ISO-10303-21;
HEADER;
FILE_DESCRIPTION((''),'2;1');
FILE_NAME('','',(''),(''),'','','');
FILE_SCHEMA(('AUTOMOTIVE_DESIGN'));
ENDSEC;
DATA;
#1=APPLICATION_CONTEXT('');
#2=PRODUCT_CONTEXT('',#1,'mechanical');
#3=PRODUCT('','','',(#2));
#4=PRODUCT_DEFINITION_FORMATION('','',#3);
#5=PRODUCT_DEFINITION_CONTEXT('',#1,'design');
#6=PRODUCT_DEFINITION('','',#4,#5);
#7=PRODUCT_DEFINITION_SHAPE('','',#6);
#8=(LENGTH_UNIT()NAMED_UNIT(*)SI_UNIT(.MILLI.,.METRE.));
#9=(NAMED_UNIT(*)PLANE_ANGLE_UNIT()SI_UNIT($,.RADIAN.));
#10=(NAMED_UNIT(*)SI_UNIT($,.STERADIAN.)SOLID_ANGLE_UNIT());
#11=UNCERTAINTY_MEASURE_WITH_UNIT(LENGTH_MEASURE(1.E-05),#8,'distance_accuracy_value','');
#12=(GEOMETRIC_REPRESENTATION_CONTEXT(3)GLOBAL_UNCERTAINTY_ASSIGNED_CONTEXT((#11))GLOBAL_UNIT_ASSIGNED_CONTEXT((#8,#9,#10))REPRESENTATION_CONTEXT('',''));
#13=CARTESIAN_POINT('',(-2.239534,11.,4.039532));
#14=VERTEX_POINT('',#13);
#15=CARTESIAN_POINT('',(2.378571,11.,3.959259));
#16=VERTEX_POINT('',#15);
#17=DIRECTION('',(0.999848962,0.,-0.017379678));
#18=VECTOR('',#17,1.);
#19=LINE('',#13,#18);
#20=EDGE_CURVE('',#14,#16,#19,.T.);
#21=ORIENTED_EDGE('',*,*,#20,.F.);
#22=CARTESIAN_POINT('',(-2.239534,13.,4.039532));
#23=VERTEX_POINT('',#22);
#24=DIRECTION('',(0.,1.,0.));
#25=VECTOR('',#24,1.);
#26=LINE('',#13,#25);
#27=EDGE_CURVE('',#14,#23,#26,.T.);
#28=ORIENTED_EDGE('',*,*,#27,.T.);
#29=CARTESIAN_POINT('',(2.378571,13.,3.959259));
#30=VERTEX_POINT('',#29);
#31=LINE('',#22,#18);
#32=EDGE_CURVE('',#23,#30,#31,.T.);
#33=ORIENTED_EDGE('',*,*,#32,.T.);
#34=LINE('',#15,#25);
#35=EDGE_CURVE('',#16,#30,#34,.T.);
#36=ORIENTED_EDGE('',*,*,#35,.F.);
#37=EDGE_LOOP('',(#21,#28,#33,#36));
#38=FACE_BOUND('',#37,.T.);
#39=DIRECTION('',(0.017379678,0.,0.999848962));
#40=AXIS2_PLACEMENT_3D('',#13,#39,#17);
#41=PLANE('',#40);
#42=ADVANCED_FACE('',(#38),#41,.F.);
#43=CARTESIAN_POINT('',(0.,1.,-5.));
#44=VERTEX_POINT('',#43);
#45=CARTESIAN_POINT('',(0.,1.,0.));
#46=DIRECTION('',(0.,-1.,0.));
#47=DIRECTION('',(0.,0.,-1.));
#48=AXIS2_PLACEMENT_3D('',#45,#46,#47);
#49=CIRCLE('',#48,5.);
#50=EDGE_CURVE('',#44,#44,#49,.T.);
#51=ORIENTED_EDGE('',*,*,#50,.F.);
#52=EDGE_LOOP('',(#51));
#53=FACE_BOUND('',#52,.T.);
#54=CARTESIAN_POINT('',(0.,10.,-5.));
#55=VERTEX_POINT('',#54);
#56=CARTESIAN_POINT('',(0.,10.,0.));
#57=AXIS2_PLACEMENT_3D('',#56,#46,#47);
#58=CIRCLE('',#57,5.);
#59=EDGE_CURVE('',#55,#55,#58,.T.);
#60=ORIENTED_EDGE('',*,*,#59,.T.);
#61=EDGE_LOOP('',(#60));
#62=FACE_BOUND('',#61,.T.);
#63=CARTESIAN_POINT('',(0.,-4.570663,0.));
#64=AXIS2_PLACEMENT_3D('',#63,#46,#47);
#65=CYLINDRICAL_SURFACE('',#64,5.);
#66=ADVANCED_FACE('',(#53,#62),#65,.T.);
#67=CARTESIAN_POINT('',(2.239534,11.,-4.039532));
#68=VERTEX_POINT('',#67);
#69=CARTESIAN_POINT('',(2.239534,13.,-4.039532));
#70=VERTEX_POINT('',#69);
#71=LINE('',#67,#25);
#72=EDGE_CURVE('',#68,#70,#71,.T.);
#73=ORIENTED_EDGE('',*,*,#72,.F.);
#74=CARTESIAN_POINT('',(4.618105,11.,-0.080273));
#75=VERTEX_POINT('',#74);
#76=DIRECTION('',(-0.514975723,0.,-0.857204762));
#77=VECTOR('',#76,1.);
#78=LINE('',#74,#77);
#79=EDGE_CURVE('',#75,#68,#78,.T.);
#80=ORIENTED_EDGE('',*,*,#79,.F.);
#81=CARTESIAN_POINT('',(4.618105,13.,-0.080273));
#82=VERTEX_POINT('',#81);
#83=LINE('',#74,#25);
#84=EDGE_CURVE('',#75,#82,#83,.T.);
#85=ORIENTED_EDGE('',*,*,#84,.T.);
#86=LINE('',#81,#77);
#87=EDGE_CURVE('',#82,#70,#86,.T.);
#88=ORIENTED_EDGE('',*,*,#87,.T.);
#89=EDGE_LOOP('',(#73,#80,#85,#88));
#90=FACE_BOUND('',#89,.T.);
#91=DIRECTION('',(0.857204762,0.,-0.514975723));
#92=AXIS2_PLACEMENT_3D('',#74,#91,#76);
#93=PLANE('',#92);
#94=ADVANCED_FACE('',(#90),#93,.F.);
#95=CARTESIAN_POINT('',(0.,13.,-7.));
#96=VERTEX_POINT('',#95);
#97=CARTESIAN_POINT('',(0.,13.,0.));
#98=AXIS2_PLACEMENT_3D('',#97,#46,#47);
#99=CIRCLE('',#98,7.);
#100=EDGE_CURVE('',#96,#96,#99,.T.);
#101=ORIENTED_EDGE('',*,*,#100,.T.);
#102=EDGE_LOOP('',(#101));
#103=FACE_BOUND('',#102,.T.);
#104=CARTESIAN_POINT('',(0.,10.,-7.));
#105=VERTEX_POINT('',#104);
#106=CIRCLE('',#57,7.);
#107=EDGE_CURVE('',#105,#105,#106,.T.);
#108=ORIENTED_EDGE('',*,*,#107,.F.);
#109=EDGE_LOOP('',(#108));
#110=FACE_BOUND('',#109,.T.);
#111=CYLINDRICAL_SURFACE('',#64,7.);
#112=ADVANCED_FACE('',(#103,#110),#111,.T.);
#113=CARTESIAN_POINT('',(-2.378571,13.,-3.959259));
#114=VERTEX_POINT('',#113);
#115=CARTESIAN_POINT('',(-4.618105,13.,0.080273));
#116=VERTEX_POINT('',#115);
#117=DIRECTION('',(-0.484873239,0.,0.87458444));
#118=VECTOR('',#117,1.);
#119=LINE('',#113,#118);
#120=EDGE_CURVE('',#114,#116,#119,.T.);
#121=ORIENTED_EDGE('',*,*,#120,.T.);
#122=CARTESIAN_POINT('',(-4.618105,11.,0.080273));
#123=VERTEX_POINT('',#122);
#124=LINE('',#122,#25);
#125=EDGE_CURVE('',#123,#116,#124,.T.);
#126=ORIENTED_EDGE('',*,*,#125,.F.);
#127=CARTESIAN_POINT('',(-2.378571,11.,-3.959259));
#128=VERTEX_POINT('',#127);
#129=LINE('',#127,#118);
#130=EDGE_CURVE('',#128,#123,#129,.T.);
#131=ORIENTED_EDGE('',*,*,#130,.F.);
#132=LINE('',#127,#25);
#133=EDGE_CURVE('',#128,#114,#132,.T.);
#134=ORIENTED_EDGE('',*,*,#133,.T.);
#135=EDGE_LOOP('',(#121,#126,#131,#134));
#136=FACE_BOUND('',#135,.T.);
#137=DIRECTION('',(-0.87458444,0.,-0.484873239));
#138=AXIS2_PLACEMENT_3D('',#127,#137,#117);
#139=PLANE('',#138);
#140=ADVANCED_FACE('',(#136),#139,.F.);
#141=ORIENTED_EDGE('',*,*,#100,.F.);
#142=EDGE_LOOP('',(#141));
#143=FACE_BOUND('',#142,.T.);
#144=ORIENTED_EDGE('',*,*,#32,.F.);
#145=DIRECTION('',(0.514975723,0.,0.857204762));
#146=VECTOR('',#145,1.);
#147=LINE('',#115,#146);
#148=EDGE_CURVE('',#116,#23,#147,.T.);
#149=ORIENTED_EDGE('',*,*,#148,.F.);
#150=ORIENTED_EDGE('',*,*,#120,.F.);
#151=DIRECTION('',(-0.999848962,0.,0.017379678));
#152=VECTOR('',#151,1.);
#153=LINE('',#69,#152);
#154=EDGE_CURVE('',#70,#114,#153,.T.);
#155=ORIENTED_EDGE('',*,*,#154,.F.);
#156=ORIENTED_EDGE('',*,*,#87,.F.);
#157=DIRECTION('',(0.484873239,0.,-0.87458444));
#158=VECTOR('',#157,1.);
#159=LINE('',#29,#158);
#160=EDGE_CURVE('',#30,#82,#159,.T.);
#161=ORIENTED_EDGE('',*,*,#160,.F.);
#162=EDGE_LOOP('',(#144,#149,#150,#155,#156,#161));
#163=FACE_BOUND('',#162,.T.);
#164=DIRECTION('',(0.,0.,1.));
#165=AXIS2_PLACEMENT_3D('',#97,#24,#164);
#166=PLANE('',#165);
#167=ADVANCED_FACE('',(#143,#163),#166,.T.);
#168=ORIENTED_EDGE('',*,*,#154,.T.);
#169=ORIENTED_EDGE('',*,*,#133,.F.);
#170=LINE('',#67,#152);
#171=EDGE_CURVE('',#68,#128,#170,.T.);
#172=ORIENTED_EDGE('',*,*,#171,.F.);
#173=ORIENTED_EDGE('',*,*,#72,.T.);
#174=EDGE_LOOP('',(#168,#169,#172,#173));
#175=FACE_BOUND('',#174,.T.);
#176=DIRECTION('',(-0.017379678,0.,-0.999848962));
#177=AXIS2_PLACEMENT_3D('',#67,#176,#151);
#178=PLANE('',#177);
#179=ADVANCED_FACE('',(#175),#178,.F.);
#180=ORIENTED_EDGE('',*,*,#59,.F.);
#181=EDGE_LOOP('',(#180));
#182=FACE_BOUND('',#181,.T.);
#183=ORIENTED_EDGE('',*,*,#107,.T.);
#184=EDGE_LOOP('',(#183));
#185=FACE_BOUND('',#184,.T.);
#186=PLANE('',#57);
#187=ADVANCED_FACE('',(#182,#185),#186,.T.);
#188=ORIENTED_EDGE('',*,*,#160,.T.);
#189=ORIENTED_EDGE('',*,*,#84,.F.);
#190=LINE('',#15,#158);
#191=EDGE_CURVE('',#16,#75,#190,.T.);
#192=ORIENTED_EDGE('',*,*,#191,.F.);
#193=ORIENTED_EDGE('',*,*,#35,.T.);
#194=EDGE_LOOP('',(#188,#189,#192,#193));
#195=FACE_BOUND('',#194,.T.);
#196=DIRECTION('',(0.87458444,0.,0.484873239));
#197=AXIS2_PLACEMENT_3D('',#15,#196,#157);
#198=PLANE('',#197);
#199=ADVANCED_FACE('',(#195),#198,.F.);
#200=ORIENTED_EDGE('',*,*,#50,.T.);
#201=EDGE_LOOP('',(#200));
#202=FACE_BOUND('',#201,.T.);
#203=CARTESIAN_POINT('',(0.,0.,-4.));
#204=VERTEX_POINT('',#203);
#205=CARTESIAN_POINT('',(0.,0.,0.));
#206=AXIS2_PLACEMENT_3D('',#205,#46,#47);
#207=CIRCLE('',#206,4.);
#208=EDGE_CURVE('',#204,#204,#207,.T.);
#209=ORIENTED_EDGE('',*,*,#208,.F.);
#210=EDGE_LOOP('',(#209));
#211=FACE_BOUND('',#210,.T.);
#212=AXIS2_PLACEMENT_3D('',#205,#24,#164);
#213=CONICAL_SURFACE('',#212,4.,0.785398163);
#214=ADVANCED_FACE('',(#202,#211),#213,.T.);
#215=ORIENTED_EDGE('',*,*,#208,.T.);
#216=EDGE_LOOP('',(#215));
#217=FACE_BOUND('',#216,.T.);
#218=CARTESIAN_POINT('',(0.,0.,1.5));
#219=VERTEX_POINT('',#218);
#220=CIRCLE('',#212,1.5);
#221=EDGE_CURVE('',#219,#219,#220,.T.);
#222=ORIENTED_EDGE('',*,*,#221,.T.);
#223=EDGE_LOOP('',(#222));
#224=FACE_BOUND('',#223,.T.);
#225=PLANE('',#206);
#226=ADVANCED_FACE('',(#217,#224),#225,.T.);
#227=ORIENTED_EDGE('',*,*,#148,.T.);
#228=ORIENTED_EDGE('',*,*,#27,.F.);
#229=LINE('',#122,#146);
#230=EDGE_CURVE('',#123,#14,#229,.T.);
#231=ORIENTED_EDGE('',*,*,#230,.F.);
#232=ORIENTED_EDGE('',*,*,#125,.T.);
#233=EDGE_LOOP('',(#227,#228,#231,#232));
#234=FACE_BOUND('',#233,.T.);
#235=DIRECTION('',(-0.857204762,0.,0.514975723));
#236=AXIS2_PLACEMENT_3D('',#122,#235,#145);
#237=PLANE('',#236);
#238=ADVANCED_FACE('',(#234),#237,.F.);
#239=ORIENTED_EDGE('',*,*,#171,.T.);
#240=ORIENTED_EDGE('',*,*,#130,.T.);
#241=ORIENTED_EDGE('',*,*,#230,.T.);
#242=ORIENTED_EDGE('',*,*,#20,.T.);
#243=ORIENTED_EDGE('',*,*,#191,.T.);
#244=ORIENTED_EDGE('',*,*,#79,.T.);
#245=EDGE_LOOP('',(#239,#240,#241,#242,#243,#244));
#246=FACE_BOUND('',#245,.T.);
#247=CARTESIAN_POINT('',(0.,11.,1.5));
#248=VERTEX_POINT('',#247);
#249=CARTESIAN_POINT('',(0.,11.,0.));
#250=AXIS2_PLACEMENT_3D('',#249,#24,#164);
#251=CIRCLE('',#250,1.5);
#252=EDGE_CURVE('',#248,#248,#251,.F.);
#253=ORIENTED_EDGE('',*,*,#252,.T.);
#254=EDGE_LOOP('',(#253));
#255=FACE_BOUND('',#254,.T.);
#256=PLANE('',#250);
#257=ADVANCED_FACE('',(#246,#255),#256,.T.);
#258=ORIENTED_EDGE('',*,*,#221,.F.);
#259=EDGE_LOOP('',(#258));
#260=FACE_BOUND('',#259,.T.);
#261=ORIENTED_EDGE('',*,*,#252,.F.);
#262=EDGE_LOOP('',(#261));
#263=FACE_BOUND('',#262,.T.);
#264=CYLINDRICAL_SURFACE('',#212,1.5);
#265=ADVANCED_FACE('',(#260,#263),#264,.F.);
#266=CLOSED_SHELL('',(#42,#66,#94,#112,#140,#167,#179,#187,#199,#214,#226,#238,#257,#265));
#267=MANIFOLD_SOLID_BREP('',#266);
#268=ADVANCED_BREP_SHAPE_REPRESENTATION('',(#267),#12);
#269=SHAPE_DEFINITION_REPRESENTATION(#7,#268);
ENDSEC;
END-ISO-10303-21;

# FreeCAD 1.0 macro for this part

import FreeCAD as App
import Part
import Sketcher
from FreeCAD import Vector
Q = App.Units.Quantity


def add_polygon(sketch, points):
    """Adds a closed chain of lines whose ends are joined by coincident constraints."""
    first, n = sketch.GeometryCount, len(points)
    for a, b in zip(points, points[1:] + points[:1]):
        sketch.addGeometry(Part.LineSegment(App.Vector(*a, 0), App.Vector(*b, 0)), False)
    for i in range(n):
        sketch.addConstraint(Sketcher.Constraint("Coincident", first + i, 2, first + (i + 1) % n, 1))

doc = App.newDocument("Part")
body = doc.addObject("PartDesign::Body", "Body")

# Sketch on XY plane
sketch1 = body.newObject("Sketcher::SketchObject", "Sketch")
sketch1.AttachmentSupport = (doc.getObject("XY_Plane"), [""])
sketch1.MapMode = "FlatFace"
add_polygon(sketch1, [(7, 13), (0, 13), (0, 0), (4, 0), (5, 1), (5, 10), (7, 10)])  # lines 0-6
sketch1.addConstraint([
    Sketcher.Constraint("Horizontal", 0),
    Sketcher.Constraint("Vertical", 1),
    Sketcher.Constraint("Horizontal", 2),
    Sketcher.Constraint("Vertical", 4),
    Sketcher.Constraint("Horizontal", 5),
    Sketcher.Constraint("Vertical", 6),
    Sketcher.Constraint("Coincident", 1, 2, -1, 1),
    Sketcher.Constraint("DistanceX", 0, 2, 0, 1, Q("7 mm")),
    Sketcher.Constraint("DistanceX", 2, 1, 2, 2, Q("4 mm")),
    Sketcher.Constraint("DistanceX", 5, 1, 5, 2, Q("2 mm")),
    Sketcher.Constraint("DistanceY", 1, 2, 1, 1, Q("13 mm")),
    Sketcher.Constraint("DistanceY", 4, 1, 4, 2, Q("9 mm")),
    Sketcher.Constraint("DistanceY", 6, 1, 6, 2, Q("3 mm")),
])
revolution = body.newObject("PartDesign::Revolution", "Revolution")
revolution.Profile = sketch1
revolution.ReferenceAxis = (sketch1, ["V_Axis"])
revolution.Angle = 360

# Sketch on XZ plane
sketch2 = body.newObject("Sketcher::SketchObject", "Sketch001")
sketch2.AttachmentSupport = (doc.getObject("XZ_Plane"), [""])
sketch2.MapMode = "FlatFace"
sketch2.AttachmentOffset = App.Placement(Vector(0, 0, -13), App.Rotation())
sketch2.addGeometry(Part.Circle(Vector(0, 0, 0), Vector(0, 0, 1), 1.5), False)
sketch2.addConstraint([
    Sketcher.Constraint("Coincident", 0, 3, -1, 1),
    Sketcher.Constraint("Diameter", 0, Q("3 mm")),
])
pocket1 = body.newObject("PartDesign::Pocket", "Pocket")
pocket1.Profile = sketch2
pocket1.Type = "ThroughAll"
pocket1.Reversed = True

# Sketch on XZ plane
sketch3 = body.newObject("Sketcher::SketchObject", "Sketch002")
sketch3.AttachmentSupport = (doc.getObject("XZ_Plane"), [""])
sketch3.MapMode = "FlatFace"
sketch3.AttachmentOffset = App.Placement(Vector(0, 0, -13), App.Rotation())
add_polygon(sketch3, [(2.239534, -4.039532), (-2.378571, -3.959259), (-4.618105, 0.080273), (-2.239534, 4.039532), (2.378571, 3.959259), (4.618105, -0.080273)])  # lines 0-5
sketch3.addConstraint([
    Sketcher.Constraint("Symmetric", 0, 2, 3, 2, -1, 1),
    Sketcher.Constraint("Symmetric", 1, 2, 4, 2, -1, 1),
    Sketcher.Constraint("Symmetric", 2, 2, 5, 2, -1, 1),
    Sketcher.Constraint("Equal", 0, 1),
    Sketcher.Constraint("Equal", 1, 2),
    Sketcher.Constraint("DistanceX", 0, 2, -1, 1, Q("2.378571 mm")),
    Sketcher.Constraint("DistanceY", 0, 2, -1, 1, Q("3.959259 mm")),
    Sketcher.Constraint("DistanceX", 1, 2, 2, 2, Q("2.378571 mm")),
    Sketcher.Constraint("DistanceY", 1, 2, 2, 2, Q("3.959259 mm")),
])
pocket2 = body.newObject("PartDesign::Pocket", "Pocket001")
pocket2.Profile = sketch3
pocket2.Length = 2
pocket2.Reversed = True

doc.recompute()
